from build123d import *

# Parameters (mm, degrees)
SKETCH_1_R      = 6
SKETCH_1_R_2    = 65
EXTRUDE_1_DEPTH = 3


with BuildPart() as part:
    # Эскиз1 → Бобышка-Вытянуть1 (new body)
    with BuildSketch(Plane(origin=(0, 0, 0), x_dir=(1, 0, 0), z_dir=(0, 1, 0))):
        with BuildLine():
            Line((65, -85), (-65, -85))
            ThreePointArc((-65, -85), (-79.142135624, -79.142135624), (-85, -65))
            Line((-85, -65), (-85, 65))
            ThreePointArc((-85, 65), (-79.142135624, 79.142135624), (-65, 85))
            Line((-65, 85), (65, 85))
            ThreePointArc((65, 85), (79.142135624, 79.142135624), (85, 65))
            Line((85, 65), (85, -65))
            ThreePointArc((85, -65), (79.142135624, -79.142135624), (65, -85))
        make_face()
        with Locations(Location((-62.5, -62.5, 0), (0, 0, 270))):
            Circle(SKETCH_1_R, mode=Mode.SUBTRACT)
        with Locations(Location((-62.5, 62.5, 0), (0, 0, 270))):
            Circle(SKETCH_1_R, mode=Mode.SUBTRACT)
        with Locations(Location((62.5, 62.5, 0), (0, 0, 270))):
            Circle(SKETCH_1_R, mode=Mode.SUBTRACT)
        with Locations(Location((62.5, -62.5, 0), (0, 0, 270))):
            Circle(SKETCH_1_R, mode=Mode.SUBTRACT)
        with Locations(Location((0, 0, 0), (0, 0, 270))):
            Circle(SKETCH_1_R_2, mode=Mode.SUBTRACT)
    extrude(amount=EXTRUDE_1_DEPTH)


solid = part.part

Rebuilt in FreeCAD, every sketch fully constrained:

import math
import FreeCAD as App
import Part
import Sketcher
from FreeCAD import Vector
Q = App.Units.Quantity

doc = App.newDocument("Part")
body = doc.addObject("PartDesign::Body", "Body")

sketch1 = doc.addObject("Sketcher::SketchObject", "Sketch")
body.addObject(sketch1)
sketch1.AttachmentSupport = (doc.XZ_Plane, [""])
sketch1.MapMode = "FlatFace"
sketch1.addGeometry(Part.LineSegment(Vector(-65, 85, 0), Vector(65, 85, 0)), False)
sketch1.addGeometry(Part.ArcOfCircle(Part.Circle(Vector(65, 65, 0), Vector(0, 0, 1), 20), math.radians(0), math.radians(90)), False)
sketch1.addGeometry(Part.LineSegment(Vector(85, 65, 0), Vector(85, -65, 0)), False)
sketch1.addGeometry(Part.ArcOfCircle(Part.Circle(Vector(65, -65, 0), Vector(0, 0, 1), 20), math.radians(-90), math.radians(0)), False)
sketch1.addGeometry(Part.LineSegment(Vector(65, -85, 0), Vector(-65, -85, 0)), False)
sketch1.addGeometry(Part.ArcOfCircle(Part.Circle(Vector(-65, -65, 0), Vector(0, 0, 1), 20), math.radians(180), math.radians(270)), False)
sketch1.addGeometry(Part.LineSegment(Vector(-85, -65, 0), Vector(-85, 65, 0)), False)
sketch1.addGeometry(Part.ArcOfCircle(Part.Circle(Vector(-65, 65, 0), Vector(0, 0, 1), 20), math.radians(90), math.radians(180)), False)
sketch1.addGeometry(Part.Circle(Vector(62.5, 62.5, 0), Vector(0, 0, 1), 6), False)
sketch1.addGeometry(Part.Circle(Vector(-62.5, 62.5, 0), Vector(0, 0, 1), 6), False)
sketch1.addGeometry(Part.Circle(Vector(62.5, -62.5, 0), Vector(0, 0, 1), 6), False)
sketch1.addGeometry(Part.Circle(Vector(0, 0, 0), Vector(0, 0, 1), 65), False)
sketch1.addGeometry(Part.Circle(Vector(-62.5, -62.5, 0), Vector(0, 0, 1), 6), False)
sketch1.addConstraint(Sketcher.Constraint("Tangent", 0, 2, 1, 2))
sketch1.addConstraint(Sketcher.Constraint("Tangent", 1, 1, 2, 1))
sketch1.addConstraint(Sketcher.Constraint("Tangent", 2, 2, 3, 2))
sketch1.addConstraint(Sketcher.Constraint("Tangent", 3, 1, 4, 1))
sketch1.addConstraint(Sketcher.Constraint("Tangent", 4, 2, 5, 2))
sketch1.addConstraint(Sketcher.Constraint("Tangent", 5, 1, 6, 1))
sketch1.addConstraint(Sketcher.Constraint("Tangent", 6, 2, 7, 2))
sketch1.addConstraint(Sketcher.Constraint("Tangent", 7, 1, 0, 1))
sketch1.addConstraint(Sketcher.Constraint("Horizontal", 0))
sketch1.addConstraint(Sketcher.Constraint("Vertical", 2))
sketch1.addConstraint(Sketcher.Constraint("Horizontal", 4))
sketch1.addConstraint(Sketcher.Constraint("Vertical", 6))
sketch1.addConstraint(Sketcher.Constraint("Coincident", 11, 3, -1, 1))
sketch1.addConstraint(Sketcher.Constraint("Equal", 1, 3))
sketch1.addConstraint(Sketcher.Constraint("Equal", 3, 5))
sketch1.addConstraint(Sketcher.Constraint("Equal", 5, 7))
sketch1.addConstraint(Sketcher.Constraint("Equal", 8, 9))
sketch1.addConstraint(Sketcher.Constraint("Equal", 9, 10))
sketch1.addConstraint(Sketcher.Constraint("Equal", 10, 12))
sketch1.addConstraint(Sketcher.Constraint("Symmetric", 1, 3, 5, 3, -1, 1))
sketch1.addConstraint(Sketcher.Constraint("Symmetric", 9, 3, 10, 3, -1, 1))
sketch1.addConstraint(Sketcher.Constraint("Symmetric", 8, 3, 12, 3, -1, 1))
sketch1.addConstraint(Sketcher.Constraint("Symmetric", 8, 3, 9, 3, -2))
sketch1.addConstraint(Sketcher.Constraint("Equal", 4, 2))
sketch1.addConstraint(Sketcher.Constraint("Diameter", 8, Q("12 mm")))
sketch1.addConstraint(Sketcher.Constraint("Diameter", 11, Q("130 mm")))
sketch1.addConstraint(Sketcher.Constraint("Radius", 1, Q("20 mm")))
sketch1.addConstraint(Sketcher.Constraint("DistanceX", 0, 1, 0, 2, Q("130 mm")))
sketch1.addConstraint(Sketcher.Constraint("DistanceX", 9, 3, 8, 3, Q("125 mm")))
sketch1.addConstraint(Sketcher.Constraint("DistanceY", 10, 3, 8, 3, Q("125 mm")))
pad1 = doc.addObject("PartDesign::Pad", "Pad")
body.addObject(pad1)
pad1.Profile = sketch1
pad1.Length = 3
pad1.Reversed = True

doc.recompute()
